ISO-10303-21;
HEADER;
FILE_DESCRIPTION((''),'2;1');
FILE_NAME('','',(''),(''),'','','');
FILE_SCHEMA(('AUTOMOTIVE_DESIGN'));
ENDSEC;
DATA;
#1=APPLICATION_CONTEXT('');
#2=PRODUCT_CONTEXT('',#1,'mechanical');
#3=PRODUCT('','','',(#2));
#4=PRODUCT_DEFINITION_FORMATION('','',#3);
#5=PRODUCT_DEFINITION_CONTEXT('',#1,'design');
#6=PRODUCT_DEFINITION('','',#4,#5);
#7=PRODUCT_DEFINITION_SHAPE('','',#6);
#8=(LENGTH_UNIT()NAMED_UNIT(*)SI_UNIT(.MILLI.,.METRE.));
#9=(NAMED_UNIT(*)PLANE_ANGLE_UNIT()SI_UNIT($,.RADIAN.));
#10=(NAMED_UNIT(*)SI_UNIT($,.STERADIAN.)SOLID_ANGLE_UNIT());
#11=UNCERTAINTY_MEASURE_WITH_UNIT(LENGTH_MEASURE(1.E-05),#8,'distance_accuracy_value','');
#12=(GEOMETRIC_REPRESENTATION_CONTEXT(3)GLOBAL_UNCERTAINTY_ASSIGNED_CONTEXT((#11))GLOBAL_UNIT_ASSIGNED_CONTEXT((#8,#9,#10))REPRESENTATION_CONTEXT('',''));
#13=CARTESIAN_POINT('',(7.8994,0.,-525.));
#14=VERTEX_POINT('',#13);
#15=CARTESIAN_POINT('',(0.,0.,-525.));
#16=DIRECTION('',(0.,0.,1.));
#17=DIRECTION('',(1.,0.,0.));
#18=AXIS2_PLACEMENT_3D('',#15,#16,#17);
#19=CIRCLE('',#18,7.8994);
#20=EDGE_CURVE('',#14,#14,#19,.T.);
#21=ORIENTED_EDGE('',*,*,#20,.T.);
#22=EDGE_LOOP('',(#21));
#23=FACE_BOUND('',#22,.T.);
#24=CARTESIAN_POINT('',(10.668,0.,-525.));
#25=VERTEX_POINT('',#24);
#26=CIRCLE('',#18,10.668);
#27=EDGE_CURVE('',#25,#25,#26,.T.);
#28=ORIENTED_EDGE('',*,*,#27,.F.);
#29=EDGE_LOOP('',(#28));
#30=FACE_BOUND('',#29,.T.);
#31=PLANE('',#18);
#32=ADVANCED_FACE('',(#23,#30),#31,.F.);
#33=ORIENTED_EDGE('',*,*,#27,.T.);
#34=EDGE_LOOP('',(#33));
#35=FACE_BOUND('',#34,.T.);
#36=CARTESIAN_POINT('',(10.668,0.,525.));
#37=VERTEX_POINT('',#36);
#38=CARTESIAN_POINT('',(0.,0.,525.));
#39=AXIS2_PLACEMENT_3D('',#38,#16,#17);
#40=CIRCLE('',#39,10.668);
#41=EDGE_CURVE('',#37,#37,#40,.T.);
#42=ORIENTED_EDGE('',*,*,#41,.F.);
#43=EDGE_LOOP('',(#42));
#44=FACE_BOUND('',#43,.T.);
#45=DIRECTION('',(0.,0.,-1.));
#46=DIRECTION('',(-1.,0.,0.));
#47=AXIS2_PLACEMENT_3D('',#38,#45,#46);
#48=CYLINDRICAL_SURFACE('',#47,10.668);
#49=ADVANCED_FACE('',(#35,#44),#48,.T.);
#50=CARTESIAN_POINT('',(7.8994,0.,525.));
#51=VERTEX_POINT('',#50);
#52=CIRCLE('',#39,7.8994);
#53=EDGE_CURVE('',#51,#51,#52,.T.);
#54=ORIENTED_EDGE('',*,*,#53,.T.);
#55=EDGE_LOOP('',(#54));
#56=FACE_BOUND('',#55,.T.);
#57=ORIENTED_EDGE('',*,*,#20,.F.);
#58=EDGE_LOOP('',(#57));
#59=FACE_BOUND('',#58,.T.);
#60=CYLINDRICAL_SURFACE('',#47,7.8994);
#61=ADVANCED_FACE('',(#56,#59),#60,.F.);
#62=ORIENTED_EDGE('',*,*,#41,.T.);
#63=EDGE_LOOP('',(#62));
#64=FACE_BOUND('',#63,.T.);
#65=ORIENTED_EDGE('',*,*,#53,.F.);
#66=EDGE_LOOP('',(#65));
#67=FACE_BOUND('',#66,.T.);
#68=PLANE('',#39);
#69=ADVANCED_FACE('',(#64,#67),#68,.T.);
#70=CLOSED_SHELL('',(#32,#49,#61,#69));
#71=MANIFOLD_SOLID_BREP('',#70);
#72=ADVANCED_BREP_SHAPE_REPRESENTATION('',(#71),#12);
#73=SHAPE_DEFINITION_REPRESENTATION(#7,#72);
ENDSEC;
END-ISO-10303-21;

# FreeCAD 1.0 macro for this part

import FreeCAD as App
import Part
import Sketcher
Q = App.Units.Quantity

doc = App.newDocument("Part")
params = doc.addObject("Spreadsheet::Sheet", "Params")
for row, (alias, value) in enumerate([
    ("sketch1_diameter", "0.84 in"),
    ("sketch1_diameter2", "0.622 in"),
    ("pad1_length", "1050 mm"),
], start=1):
    params.set(f"A{row}", alias)
    params.set(f"B{row}", "=" + value)
    params.setAlias(f"B{row}", alias)

body = doc.addObject("PartDesign::Body", "Body")

sketch1 = body.newObject("Sketcher::SketchObject", "Sketch")
sketch1.AttachmentSupport = (doc.getObject("XY_Plane"), [""])
sketch1.MapMode = "FlatFace"
sketch1.addGeometry([
    Part.Circle(App.Vector(0, 0, 0), App.Vector(0, 0, 1), 10.668),
    Part.Circle(App.Vector(0, 0, 0), App.Vector(0, 0, 1), 7.8994),
], False)
sketch1.addConstraint([
    Sketcher.Constraint("Coincident", 0, 3, -1, 1),
    Sketcher.Constraint("Coincident", 1, 3, -1, 1),
    Sketcher.Constraint("Diameter", 0, Q("0.84 in")),
    Sketcher.Constraint("Diameter", 1, Q("0.622 in")),
])
sketch1.setExpression("Constraints[2]", "Params.sketch1_diameter")
sketch1.setExpression("Constraints[3]", "Params.sketch1_diameter2")
pad1 = body.newObject("PartDesign::Pad", "Pad")
pad1.Profile = sketch1
pad1.setExpression("Length", "Params.pad1_length")
pad1.Midplane = True

doc.recompute()
